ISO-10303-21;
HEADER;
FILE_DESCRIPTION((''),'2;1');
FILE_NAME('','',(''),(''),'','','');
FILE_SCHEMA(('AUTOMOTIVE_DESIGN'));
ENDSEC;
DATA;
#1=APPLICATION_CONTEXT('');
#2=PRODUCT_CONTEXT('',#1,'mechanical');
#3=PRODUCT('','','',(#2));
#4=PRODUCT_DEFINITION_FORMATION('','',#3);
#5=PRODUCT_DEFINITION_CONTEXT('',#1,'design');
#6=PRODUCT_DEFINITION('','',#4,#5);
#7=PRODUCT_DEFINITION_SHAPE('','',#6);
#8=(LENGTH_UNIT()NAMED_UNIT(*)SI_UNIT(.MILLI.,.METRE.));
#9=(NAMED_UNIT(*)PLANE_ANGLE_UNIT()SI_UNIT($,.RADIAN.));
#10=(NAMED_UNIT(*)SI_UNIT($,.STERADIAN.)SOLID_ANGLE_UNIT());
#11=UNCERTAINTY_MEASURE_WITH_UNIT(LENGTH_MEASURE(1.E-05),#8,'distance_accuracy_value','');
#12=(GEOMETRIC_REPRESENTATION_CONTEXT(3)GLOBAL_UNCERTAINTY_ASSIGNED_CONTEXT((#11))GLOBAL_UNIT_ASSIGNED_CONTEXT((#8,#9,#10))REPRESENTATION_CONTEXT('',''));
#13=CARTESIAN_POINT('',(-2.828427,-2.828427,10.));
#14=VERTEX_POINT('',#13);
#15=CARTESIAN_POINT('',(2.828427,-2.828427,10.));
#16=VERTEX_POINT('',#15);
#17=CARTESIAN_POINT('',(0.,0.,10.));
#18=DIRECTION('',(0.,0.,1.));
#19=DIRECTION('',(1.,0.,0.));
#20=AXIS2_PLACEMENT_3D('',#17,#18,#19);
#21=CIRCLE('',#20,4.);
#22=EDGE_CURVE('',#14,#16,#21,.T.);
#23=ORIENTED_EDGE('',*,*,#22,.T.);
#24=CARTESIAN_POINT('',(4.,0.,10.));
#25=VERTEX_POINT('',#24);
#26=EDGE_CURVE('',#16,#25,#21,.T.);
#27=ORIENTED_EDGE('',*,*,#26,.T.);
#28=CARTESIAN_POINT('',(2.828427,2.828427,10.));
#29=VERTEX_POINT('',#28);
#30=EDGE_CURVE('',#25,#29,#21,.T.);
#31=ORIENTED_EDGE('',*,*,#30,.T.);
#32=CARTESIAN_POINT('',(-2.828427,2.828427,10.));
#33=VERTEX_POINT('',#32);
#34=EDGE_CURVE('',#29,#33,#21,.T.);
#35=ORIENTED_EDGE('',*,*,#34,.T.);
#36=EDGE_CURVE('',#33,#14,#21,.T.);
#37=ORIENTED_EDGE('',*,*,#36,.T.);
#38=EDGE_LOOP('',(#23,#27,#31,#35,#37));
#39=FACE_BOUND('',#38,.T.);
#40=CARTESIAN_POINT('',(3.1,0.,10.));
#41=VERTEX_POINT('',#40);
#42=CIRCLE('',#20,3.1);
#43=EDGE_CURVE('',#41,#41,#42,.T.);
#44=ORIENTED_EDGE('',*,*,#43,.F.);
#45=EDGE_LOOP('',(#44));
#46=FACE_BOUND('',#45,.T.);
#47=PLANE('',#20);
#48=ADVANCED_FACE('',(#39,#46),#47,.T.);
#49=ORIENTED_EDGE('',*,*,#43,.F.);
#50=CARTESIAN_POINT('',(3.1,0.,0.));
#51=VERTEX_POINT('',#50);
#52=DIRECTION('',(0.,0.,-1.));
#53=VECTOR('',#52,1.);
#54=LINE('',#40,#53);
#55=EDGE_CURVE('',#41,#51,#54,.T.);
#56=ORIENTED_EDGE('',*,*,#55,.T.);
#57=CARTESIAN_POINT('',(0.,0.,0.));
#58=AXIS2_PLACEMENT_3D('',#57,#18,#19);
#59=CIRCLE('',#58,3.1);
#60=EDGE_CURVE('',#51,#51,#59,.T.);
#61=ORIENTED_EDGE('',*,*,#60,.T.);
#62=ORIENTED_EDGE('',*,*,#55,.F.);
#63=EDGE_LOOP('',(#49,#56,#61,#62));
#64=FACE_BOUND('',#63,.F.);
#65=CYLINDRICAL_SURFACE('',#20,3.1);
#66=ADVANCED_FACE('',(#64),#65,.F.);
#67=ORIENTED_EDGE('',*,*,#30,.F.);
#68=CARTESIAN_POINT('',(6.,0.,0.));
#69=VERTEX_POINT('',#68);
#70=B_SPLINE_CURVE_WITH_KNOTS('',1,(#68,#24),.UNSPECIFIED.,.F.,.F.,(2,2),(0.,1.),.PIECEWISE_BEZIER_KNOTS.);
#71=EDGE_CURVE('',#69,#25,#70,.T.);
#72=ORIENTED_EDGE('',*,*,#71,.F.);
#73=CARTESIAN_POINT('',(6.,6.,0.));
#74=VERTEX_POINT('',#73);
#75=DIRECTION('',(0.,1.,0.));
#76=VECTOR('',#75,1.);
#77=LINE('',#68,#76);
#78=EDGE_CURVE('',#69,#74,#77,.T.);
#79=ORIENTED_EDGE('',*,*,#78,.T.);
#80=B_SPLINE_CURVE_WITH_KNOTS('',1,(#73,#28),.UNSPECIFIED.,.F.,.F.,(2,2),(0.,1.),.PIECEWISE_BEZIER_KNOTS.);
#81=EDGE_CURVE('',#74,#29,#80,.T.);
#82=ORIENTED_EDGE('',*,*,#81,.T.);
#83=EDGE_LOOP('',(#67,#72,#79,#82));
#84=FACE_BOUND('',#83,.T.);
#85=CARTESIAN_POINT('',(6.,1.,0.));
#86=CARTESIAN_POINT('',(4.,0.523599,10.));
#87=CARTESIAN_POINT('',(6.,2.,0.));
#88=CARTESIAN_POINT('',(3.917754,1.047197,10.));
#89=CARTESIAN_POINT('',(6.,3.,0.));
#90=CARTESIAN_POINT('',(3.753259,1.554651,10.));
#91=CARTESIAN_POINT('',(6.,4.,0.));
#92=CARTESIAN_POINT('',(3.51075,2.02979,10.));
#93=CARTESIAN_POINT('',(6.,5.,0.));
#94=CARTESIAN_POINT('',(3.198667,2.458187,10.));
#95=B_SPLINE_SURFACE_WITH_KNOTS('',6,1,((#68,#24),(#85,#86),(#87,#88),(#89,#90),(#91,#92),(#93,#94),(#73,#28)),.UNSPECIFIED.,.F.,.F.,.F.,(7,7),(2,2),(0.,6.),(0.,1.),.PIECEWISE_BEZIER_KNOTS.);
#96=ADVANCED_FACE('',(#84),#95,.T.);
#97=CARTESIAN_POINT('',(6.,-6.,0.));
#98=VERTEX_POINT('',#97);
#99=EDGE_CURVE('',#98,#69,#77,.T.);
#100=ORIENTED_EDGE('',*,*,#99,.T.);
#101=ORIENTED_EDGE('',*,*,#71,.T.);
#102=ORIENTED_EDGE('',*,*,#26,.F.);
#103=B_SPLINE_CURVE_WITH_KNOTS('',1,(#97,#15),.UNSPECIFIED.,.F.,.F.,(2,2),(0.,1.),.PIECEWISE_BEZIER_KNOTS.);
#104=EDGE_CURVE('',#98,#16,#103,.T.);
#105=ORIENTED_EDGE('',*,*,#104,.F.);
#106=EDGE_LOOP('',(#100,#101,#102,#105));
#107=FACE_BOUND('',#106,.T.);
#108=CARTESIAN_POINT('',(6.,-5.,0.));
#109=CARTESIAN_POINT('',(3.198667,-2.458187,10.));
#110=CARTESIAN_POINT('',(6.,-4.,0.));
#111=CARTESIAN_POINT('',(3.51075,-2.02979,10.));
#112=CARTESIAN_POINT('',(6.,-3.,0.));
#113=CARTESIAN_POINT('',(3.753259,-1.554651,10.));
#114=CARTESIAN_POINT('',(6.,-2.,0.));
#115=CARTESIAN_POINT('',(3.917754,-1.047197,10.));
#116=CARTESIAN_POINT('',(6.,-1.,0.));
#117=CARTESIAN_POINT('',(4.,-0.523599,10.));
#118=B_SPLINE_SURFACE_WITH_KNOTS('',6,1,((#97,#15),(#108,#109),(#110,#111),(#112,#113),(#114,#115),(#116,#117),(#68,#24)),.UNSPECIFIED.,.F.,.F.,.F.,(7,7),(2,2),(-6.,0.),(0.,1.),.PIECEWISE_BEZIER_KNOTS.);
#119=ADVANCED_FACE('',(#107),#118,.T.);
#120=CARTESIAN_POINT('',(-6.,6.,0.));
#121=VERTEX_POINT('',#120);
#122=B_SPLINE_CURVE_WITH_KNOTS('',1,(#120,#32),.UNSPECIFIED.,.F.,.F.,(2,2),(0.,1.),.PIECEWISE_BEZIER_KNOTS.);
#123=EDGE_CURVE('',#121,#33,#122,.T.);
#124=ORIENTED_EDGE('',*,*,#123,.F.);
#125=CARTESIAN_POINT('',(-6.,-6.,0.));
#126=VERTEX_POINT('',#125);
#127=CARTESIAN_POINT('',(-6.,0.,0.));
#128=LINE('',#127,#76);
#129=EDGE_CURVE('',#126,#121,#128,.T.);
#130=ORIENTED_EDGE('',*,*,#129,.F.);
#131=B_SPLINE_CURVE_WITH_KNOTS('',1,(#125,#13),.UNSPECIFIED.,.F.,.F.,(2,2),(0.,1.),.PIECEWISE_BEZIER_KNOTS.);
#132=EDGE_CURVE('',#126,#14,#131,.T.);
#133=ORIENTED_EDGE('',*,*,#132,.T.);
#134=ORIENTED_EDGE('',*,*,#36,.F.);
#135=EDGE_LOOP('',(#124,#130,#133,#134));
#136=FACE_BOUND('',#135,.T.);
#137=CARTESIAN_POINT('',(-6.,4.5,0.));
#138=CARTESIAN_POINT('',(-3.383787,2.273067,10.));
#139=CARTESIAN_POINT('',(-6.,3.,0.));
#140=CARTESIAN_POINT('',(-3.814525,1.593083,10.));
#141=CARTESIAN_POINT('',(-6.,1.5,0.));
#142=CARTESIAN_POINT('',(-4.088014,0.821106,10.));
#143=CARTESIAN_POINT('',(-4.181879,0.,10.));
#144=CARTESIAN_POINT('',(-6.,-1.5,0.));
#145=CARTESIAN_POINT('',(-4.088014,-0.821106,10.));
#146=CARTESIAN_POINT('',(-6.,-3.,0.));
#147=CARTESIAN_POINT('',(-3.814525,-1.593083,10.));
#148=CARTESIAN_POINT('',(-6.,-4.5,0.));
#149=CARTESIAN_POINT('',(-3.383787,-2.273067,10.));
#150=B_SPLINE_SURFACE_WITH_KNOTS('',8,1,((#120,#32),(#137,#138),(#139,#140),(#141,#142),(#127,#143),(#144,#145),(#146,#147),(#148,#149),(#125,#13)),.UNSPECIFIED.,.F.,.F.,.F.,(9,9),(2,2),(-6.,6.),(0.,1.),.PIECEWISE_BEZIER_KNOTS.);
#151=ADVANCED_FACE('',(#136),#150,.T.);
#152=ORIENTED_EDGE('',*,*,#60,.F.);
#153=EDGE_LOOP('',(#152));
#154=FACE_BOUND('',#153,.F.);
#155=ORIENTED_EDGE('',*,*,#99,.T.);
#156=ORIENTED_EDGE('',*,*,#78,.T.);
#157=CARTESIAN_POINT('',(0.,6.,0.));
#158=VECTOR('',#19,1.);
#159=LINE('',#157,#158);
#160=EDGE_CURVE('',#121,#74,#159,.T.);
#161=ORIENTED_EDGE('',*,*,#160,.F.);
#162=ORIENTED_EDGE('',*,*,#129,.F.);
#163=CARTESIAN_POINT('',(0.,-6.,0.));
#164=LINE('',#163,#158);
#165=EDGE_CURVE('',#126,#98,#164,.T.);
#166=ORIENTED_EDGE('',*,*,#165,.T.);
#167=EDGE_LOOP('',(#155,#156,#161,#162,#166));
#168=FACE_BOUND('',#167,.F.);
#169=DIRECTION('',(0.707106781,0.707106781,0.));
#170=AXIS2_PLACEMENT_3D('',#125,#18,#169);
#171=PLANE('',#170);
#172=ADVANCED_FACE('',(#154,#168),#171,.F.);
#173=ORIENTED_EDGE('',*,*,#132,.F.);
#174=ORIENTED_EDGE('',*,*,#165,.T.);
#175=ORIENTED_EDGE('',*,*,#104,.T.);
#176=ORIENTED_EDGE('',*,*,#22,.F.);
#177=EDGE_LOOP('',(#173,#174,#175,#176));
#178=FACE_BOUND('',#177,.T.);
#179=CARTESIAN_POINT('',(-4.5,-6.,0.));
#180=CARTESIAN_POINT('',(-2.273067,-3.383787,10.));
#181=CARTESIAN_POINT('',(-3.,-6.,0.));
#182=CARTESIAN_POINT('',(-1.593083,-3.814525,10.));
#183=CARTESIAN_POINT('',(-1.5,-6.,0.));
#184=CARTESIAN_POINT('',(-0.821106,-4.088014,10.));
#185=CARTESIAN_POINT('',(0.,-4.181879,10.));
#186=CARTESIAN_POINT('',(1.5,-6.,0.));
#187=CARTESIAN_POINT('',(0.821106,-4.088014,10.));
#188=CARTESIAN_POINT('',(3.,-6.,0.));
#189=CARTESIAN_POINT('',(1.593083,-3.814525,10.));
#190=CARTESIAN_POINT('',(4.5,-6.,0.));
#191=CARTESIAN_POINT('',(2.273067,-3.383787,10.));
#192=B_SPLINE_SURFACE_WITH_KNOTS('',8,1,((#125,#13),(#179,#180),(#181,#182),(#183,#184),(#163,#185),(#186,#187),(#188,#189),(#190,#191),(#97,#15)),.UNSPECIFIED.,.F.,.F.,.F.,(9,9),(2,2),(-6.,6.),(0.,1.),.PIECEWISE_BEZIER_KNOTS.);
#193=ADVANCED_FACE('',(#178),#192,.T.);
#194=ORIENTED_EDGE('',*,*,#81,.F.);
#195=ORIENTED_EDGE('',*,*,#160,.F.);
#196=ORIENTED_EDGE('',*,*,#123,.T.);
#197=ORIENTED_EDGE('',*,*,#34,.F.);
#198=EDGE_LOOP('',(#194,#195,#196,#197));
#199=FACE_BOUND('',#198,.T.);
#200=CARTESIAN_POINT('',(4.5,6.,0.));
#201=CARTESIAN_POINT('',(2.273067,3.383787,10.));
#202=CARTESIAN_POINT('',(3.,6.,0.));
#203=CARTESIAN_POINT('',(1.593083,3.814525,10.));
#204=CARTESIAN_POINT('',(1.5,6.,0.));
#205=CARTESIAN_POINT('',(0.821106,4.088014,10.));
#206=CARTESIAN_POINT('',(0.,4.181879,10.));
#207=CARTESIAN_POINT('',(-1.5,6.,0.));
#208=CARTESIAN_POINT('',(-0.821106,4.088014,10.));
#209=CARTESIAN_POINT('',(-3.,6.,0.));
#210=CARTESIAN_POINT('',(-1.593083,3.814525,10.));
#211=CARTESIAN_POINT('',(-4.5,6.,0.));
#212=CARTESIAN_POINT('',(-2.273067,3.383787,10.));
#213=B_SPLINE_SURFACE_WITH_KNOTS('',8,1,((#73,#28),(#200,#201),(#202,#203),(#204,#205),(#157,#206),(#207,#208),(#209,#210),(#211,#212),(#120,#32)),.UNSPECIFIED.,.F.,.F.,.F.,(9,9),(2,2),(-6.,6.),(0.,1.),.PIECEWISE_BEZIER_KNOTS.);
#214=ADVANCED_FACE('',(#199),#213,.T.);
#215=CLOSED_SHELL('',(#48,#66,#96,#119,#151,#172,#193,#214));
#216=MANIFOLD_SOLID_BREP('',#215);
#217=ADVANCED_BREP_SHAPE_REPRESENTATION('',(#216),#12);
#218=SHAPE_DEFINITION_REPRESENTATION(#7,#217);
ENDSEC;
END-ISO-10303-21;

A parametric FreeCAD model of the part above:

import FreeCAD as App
import Part
import Sketcher
Q = App.Units.Quantity


def add_polygon(sketch, points):
    """Adds a closed chain of lines whose ends are joined by coincident constraints."""
    first, n = sketch.GeometryCount, len(points)
    for a, b in zip(points, points[1:] + points[:1]):
        sketch.addGeometry(Part.LineSegment(App.Vector(*a, 0), App.Vector(*b, 0)), False)
    for i in range(n):
        sketch.addConstraint(Sketcher.Constraint("Coincident", first + i, 2, first + (i + 1) % n, 1))

doc = App.newDocument("Part")
body = doc.addObject("PartDesign::Body", "Body")

sketch1 = body.newObject("Sketcher::SketchObject", "Sketch")
sketch1.AttachmentSupport = (doc.getObject("XY_Plane"), [""])
sketch1.MapMode = "FlatFace"
add_polygon(sketch1, [(-6, 6), (-6, -6), (6, -6), (6, 6)])
sketch1.addConstraint([
    Sketcher.Constraint("Vertical", 0),
    Sketcher.Constraint("Horizontal", 1),
    Sketcher.Constraint("Vertical", 2),
    Sketcher.Constraint("Horizontal", 3),
    Sketcher.Constraint("Symmetric", 0, 2, 2, 2, -1, 1),
    Sketcher.Constraint("Equal", 3, 0),
    Sketcher.Constraint("DistanceX", 1, 1, 1, 2, Q("12 mm")),
])

sketch2 = body.newObject("Sketcher::SketchObject", "Sketch001")
sketch2.AttachmentSupport = (doc.getObject("XY_Plane"), [""])
sketch2.MapMode = "FlatFace"
sketch2.AttachmentOffset = App.Placement(App.Vector(0, 0, 10), App.Rotation())
sketch2.addGeometry(Part.Circle(App.Vector(0, 0, 0), App.Vector(0, 0, 1), 4), False)
sketch2.addConstraint([
    Sketcher.Constraint("Coincident", 0, 3, -1, 1),
    Sketcher.Constraint("Diameter", 0, Q("8 mm")),
])

additiveloft = body.newObject("PartDesign::AdditiveLoft", "AdditiveLoft")
additiveloft.Profile = sketch1
additiveloft.Sections = [sketch2]

sketch3 = body.newObject("Sketcher::SketchObject", "Sketch002")
sketch3.AttachmentSupport = (doc.getObject("XY_Plane"), [""])
sketch3.MapMode = "FlatFace"
sketch3.AttachmentOffset = App.Placement(App.Vector(0, 0, 10), App.Rotation())
sketch3.addGeometry(Part.Circle(App.Vector(0, 0, 0), App.Vector(0, 0, 1), 3.1), False)
sketch3.addConstraint([
    Sketcher.Constraint("Coincident", 0, 3, -1, 1),
    Sketcher.Constraint("Diameter", 0, Q("6.2 mm")),
])
pocket1 = body.newObject("PartDesign::Pocket", "Pocket")
pocket1.Profile = sketch3
pocket1.Type = "ThroughAll"

doc.recompute()
